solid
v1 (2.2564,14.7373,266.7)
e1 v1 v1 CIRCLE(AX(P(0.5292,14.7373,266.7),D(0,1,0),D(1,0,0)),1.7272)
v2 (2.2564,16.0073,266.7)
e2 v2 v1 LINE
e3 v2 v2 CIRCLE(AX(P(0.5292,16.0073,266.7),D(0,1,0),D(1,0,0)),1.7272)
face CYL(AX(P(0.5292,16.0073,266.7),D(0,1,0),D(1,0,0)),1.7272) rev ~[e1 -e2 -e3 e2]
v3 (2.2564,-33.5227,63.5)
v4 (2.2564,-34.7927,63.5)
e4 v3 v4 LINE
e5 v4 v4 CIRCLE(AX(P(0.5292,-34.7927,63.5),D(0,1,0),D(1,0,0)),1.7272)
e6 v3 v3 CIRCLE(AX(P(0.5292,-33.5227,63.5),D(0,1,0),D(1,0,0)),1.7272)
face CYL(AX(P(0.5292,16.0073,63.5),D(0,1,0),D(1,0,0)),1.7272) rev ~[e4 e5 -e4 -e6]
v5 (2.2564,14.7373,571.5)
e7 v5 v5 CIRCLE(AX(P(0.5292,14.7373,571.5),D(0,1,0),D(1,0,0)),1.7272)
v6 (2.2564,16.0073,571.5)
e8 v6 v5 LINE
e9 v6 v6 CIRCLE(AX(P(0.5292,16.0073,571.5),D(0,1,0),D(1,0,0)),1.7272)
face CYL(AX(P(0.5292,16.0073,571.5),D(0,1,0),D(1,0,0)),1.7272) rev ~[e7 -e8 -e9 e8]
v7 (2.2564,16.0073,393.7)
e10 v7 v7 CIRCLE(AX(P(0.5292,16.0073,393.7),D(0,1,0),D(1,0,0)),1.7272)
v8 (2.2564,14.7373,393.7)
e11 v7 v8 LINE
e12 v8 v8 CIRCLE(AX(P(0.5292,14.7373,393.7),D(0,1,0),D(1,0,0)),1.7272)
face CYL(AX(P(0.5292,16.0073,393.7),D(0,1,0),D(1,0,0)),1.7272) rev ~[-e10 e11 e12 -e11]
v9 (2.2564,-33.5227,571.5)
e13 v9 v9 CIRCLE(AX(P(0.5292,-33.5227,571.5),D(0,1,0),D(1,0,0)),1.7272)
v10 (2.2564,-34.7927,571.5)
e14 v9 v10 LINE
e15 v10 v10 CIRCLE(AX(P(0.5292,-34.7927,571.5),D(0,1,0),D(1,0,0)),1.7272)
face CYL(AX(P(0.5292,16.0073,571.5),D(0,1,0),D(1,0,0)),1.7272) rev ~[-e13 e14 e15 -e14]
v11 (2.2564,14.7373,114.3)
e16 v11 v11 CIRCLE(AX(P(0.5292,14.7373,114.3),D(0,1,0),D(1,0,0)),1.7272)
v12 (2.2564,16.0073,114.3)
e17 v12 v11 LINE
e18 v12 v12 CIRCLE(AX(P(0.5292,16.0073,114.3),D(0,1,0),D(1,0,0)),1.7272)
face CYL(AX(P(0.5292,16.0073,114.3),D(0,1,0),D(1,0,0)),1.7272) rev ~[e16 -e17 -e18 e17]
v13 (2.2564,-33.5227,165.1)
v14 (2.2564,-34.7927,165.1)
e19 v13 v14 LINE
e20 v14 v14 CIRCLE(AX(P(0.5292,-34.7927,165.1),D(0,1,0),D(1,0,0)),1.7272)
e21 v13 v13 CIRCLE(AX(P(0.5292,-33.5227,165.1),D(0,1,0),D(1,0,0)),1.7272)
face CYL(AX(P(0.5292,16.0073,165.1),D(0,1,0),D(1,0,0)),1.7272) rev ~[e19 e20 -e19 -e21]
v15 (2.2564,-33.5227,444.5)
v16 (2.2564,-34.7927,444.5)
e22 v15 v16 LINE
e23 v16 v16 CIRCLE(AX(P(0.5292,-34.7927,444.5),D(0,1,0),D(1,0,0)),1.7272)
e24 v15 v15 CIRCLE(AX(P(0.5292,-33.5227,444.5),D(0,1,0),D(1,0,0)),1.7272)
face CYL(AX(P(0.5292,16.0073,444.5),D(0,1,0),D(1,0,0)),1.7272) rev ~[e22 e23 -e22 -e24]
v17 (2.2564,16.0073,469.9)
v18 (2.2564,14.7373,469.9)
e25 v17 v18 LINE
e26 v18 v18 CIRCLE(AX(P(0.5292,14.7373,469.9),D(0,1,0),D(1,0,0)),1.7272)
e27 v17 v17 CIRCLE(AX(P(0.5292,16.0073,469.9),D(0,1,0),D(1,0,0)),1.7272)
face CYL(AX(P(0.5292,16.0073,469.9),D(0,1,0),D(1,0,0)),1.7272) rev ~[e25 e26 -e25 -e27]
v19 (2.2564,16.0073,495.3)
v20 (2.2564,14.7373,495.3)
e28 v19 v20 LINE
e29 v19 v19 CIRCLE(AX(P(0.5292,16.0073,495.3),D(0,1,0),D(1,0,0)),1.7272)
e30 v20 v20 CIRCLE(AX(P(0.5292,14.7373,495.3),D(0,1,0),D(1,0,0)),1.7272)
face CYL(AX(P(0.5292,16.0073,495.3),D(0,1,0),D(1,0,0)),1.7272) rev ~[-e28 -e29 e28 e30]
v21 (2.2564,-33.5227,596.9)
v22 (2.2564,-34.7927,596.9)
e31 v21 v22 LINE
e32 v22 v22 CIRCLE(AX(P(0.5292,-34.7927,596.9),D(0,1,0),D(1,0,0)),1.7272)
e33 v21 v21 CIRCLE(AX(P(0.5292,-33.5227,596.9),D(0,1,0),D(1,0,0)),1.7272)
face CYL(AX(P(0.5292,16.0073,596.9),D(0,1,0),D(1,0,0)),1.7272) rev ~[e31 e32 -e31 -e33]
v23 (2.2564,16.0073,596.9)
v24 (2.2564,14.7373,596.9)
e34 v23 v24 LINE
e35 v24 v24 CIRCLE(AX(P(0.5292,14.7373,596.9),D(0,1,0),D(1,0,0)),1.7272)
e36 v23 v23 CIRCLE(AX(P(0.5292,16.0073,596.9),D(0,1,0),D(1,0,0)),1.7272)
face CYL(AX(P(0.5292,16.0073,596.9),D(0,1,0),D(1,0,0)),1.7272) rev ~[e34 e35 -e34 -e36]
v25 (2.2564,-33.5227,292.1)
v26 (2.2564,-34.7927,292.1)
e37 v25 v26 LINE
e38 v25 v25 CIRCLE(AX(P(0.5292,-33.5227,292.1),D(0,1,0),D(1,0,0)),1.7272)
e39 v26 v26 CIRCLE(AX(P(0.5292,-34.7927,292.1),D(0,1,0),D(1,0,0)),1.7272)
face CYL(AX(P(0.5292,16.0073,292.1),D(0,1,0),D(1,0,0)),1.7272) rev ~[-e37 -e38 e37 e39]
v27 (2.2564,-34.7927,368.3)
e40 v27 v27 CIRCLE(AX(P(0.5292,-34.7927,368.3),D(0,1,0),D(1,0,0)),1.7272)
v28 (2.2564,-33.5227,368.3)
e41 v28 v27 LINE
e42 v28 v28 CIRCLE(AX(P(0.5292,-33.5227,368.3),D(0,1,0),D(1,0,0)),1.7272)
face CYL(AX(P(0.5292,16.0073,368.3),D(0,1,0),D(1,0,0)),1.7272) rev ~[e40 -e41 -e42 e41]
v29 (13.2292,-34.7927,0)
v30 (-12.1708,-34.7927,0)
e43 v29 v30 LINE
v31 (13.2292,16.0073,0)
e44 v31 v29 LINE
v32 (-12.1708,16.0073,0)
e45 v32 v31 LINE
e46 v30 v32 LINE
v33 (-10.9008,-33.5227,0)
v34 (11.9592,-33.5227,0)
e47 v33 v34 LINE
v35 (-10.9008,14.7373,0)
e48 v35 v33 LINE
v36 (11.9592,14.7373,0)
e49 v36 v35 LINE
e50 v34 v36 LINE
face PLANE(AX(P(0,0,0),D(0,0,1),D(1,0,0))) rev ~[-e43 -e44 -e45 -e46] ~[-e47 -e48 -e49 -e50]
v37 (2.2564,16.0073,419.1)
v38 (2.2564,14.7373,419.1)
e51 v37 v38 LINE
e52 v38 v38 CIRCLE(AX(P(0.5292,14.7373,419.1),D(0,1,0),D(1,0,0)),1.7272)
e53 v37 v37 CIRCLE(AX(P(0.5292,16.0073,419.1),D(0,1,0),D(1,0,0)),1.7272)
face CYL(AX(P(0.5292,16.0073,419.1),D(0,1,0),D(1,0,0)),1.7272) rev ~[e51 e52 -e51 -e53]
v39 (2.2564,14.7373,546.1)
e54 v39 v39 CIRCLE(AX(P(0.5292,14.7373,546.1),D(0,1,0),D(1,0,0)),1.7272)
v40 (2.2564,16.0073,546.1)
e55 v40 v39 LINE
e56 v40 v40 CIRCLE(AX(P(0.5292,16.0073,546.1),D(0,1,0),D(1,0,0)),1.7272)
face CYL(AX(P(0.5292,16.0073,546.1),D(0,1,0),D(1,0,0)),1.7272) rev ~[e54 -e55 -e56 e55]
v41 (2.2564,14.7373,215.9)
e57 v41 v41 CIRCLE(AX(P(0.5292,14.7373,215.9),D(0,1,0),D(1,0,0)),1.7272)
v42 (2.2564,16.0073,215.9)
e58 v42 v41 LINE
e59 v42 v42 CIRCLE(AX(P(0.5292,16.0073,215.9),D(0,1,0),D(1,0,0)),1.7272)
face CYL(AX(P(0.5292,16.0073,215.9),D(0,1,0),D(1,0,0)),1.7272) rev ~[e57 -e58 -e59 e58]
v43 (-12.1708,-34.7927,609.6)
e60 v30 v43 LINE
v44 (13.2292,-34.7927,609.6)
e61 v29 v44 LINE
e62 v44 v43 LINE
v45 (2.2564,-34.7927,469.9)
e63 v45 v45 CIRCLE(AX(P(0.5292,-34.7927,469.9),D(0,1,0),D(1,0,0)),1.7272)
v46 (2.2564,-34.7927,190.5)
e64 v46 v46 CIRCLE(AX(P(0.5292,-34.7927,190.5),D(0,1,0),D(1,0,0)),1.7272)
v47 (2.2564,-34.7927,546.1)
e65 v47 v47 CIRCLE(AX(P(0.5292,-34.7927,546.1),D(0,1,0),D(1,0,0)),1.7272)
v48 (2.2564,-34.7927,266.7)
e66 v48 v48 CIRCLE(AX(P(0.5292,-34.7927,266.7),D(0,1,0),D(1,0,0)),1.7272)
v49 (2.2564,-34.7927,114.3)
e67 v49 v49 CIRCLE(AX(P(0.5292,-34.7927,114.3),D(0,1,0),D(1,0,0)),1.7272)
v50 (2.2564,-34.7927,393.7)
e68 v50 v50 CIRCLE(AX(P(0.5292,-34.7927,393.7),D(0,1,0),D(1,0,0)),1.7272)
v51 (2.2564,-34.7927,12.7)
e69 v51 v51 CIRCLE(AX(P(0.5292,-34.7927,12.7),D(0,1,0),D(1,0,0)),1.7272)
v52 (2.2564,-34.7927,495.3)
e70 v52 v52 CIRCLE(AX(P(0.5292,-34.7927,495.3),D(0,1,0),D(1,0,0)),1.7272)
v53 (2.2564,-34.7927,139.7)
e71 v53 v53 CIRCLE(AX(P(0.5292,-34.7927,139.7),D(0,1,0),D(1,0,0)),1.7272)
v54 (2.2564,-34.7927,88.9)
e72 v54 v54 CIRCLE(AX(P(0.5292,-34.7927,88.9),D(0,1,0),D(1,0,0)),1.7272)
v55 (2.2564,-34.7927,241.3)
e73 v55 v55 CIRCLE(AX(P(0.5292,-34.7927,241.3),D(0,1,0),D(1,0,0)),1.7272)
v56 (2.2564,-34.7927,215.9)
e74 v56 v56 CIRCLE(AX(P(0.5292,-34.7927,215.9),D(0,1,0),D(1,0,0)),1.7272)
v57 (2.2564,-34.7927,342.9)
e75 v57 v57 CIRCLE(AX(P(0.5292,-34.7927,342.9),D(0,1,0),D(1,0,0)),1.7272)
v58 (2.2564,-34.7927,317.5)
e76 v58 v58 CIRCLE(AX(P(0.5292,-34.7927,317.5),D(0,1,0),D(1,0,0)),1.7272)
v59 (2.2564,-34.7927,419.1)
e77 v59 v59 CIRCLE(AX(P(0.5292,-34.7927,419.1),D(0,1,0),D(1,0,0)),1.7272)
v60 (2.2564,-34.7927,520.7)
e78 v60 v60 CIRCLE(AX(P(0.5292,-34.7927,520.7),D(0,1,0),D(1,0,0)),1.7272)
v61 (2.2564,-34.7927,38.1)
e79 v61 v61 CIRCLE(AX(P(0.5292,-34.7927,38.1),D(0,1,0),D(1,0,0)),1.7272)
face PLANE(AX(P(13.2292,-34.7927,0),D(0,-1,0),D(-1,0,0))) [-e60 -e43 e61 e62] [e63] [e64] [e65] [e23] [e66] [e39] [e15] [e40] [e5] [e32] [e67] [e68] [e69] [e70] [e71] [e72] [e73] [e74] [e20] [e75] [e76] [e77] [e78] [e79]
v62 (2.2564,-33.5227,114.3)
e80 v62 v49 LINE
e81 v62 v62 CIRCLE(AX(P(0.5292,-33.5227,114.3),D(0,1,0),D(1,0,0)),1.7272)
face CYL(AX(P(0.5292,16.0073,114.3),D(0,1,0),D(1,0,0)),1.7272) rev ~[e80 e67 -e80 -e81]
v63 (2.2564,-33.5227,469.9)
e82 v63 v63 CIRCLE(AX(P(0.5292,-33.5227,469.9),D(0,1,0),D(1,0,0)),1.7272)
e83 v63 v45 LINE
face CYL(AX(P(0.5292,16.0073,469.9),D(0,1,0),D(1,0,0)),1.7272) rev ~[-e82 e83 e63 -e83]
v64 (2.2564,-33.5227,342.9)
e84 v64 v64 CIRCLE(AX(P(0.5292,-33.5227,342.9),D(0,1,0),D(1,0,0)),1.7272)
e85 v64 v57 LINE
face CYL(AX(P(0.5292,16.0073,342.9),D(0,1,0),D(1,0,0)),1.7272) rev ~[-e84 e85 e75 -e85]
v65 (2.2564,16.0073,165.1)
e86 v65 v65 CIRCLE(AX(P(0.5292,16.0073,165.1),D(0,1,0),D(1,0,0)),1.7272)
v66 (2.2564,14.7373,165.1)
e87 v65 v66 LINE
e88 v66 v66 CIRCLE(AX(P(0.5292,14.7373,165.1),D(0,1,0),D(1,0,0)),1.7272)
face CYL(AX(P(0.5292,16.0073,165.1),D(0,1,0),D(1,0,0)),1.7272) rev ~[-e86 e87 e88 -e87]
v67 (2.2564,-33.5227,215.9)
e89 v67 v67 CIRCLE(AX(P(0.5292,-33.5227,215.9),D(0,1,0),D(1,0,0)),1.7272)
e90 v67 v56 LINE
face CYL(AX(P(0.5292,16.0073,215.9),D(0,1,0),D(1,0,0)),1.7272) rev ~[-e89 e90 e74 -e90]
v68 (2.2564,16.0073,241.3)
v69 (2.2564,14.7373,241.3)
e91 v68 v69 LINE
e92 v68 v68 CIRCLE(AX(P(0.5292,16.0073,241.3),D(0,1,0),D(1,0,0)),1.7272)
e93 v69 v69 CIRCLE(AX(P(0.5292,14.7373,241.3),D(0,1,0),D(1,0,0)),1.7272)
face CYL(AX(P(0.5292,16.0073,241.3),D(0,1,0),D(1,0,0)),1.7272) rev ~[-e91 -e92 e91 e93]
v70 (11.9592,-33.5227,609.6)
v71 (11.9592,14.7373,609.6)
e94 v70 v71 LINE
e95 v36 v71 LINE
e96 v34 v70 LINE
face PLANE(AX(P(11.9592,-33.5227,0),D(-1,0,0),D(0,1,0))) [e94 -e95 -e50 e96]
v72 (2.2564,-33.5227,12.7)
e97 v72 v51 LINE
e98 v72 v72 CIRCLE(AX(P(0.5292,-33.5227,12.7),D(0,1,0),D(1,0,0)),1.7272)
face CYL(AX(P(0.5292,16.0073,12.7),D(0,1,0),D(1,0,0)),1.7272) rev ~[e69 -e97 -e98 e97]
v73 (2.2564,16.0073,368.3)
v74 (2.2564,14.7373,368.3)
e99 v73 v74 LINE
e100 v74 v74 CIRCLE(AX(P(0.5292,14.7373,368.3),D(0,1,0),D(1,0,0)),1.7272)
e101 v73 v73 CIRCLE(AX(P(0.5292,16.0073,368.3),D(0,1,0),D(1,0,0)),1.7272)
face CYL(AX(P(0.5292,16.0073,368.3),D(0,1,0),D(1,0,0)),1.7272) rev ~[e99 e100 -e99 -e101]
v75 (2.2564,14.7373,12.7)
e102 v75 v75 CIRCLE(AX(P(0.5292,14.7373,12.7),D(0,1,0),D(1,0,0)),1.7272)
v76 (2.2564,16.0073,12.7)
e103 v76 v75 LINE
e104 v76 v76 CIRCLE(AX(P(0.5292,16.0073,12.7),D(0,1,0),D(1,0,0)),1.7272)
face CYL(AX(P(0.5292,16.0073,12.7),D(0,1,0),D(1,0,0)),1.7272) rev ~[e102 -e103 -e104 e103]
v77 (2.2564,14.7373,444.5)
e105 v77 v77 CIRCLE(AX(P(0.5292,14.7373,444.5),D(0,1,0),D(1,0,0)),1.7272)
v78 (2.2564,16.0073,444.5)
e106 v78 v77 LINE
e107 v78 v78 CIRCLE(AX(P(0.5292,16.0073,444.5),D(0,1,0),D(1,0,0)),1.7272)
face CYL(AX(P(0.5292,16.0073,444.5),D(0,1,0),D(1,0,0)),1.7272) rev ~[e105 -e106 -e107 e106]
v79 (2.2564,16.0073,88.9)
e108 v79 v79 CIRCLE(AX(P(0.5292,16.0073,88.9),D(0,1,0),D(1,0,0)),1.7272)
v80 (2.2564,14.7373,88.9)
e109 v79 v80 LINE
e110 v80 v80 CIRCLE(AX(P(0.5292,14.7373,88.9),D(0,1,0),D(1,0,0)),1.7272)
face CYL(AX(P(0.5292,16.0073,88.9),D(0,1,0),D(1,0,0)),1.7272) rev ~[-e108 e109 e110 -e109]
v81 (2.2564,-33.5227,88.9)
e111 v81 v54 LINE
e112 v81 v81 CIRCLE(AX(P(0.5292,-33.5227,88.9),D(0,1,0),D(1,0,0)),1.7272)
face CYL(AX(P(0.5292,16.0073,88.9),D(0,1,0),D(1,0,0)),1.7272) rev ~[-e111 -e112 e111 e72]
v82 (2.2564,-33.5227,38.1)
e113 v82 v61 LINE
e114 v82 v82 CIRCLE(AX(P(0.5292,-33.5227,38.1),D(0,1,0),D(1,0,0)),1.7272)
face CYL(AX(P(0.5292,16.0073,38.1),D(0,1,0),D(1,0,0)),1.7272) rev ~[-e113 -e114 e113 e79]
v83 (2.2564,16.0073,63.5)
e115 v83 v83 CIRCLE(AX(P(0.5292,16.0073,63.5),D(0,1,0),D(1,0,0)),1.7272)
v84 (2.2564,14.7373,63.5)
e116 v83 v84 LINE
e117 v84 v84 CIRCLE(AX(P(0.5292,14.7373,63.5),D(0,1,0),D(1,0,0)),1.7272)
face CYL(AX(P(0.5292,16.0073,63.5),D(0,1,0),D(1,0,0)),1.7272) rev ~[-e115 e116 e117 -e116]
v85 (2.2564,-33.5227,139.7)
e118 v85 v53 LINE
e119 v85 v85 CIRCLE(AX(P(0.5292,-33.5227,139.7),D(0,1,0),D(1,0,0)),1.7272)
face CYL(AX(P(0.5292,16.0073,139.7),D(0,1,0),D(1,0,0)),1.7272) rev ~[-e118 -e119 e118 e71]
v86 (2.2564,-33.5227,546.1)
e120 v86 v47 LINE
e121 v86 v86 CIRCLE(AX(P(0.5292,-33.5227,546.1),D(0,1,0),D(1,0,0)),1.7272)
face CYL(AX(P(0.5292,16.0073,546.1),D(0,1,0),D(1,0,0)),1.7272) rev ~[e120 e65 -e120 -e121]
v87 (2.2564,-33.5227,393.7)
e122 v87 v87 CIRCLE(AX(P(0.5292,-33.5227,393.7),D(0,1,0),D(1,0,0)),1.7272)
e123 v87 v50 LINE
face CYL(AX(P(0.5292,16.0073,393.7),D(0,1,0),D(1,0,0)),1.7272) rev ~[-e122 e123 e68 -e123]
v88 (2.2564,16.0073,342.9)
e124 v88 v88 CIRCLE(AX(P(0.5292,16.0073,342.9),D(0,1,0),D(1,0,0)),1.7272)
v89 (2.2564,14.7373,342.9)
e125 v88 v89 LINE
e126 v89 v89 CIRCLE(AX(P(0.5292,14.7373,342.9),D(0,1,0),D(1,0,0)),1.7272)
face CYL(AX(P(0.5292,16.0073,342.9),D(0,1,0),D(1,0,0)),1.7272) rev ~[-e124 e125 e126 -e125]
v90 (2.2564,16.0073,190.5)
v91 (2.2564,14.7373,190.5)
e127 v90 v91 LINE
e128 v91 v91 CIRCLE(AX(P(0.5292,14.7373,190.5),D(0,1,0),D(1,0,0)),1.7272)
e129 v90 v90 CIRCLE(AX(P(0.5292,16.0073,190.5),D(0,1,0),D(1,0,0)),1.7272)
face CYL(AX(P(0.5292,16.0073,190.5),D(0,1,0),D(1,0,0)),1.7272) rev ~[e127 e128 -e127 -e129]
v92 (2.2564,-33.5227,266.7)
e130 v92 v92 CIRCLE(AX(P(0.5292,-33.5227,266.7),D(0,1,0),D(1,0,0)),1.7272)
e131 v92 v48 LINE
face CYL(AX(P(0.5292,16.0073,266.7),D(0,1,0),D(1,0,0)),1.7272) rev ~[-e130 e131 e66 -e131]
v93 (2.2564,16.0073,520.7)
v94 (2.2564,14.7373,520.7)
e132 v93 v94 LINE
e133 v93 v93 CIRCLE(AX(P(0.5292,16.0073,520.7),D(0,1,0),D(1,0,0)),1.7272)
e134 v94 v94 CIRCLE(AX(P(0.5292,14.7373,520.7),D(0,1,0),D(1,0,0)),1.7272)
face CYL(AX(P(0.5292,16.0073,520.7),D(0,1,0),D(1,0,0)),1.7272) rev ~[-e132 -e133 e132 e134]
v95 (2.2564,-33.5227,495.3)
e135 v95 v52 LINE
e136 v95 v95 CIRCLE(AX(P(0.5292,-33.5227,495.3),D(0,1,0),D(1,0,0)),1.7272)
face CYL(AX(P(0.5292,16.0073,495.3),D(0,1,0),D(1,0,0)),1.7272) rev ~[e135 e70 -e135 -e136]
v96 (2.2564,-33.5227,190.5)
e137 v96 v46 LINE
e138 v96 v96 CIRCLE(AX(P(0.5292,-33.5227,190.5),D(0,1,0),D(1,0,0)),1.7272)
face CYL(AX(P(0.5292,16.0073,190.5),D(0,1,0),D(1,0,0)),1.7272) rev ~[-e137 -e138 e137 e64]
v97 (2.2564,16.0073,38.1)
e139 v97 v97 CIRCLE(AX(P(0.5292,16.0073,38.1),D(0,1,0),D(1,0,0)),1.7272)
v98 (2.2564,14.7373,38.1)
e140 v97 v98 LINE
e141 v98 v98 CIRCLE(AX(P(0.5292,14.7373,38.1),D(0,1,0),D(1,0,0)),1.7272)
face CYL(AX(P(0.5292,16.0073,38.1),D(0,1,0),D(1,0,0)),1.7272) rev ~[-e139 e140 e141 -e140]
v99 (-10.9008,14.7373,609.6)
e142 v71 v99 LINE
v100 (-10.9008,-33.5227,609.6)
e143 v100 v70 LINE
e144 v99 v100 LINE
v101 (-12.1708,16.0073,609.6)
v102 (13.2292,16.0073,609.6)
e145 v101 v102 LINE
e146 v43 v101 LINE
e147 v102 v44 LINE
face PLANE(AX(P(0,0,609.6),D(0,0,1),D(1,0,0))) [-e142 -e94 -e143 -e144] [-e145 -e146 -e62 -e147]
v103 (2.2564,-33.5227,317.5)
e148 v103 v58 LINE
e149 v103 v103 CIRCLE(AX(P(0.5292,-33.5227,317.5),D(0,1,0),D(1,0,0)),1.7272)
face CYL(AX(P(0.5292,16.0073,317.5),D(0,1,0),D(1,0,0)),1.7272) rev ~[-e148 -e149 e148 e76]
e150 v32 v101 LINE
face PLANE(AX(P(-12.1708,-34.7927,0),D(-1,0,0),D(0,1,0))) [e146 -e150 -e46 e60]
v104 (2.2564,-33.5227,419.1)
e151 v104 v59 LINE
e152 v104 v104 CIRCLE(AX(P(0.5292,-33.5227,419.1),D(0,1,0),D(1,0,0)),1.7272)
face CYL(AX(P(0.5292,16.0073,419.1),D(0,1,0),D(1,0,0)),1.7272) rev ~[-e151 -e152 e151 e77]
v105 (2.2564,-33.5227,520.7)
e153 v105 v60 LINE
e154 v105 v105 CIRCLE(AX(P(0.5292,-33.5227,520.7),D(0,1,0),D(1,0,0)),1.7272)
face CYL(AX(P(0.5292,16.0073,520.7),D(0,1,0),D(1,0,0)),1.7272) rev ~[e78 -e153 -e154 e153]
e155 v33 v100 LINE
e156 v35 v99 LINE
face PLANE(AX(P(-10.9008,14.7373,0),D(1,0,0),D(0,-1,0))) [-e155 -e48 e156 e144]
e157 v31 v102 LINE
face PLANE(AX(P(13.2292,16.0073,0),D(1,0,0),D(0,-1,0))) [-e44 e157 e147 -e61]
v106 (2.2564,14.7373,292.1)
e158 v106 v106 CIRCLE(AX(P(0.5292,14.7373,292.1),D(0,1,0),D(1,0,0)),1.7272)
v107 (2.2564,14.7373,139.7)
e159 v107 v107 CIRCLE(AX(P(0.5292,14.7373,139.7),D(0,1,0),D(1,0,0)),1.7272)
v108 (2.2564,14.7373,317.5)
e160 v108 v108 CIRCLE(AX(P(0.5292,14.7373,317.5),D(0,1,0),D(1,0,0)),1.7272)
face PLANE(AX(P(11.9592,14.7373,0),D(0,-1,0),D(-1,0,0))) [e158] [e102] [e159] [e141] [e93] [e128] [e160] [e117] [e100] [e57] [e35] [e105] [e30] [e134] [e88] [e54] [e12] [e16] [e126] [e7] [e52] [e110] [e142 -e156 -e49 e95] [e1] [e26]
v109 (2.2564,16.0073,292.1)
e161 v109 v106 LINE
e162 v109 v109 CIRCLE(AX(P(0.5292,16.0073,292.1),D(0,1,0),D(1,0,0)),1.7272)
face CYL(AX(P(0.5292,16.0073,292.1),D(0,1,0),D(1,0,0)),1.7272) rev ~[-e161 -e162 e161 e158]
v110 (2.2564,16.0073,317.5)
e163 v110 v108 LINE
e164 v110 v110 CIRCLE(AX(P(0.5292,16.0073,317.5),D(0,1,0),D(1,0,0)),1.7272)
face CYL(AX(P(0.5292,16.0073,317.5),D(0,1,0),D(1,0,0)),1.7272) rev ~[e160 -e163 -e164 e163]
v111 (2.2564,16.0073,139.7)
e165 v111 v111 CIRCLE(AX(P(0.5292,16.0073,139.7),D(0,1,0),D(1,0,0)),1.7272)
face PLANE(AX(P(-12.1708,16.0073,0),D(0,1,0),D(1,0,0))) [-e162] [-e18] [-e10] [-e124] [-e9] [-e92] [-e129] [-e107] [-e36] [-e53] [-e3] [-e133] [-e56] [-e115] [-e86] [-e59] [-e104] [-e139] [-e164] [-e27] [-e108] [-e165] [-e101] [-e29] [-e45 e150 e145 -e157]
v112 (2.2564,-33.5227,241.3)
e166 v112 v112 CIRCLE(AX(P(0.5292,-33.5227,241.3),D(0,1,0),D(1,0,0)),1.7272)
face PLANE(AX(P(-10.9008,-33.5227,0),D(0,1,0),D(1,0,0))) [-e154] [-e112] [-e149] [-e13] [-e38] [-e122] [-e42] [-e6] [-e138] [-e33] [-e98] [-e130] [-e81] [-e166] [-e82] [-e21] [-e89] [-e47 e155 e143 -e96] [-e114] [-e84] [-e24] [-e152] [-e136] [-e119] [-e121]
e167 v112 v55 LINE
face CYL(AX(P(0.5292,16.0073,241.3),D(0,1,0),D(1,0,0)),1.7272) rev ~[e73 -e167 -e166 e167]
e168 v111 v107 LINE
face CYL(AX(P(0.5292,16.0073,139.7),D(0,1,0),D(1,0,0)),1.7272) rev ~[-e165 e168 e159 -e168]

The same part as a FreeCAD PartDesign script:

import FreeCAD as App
import Part
import Sketcher
from FreeCAD import Vector
Q = App.Units.Quantity


def add_polygon(sketch, points):
    """Adds a closed chain of lines whose ends are joined by coincident constraints."""
    first, n = sketch.GeometryCount, len(points)
    for a, b in zip(points, points[1:] + points[:1]):
        sketch.addGeometry(Part.LineSegment(App.Vector(*a, 0), App.Vector(*b, 0)), False)
    for i in range(n):
        sketch.addConstraint(Sketcher.Constraint("Coincident", first + i, 2, first + (i + 1) % n, 1))

doc = App.newDocument("Part")
body = doc.addObject("PartDesign::Body", "Body")

sketch1 = body.newObject("Sketcher::SketchObject", "Sketch")
sketch1.AttachmentSupport = (doc.getObject("XY_Plane"), [""])
sketch1.MapMode = "FlatFace"
add_polygon(sketch1, [(13, 16), (-12, 16), (-12, -35), (13, -35)])
add_polygon(sketch1, [(-11, 15), (12, 15), (12, -34), (-11, -34)])
sketch1.addConstraint(Sketcher.Constraint("Horizontal", 0))
sketch1.addConstraint(Sketcher.Constraint("Vertical", 1))
sketch1.addConstraint(Sketcher.Constraint("Horizontal", 2))
sketch1.addConstraint(Sketcher.Constraint("Vertical", 3))
sketch1.addConstraint(Sketcher.Constraint("Horizontal", 4))
sketch1.addConstraint(Sketcher.Constraint("Vertical", 5))
sketch1.addConstraint(Sketcher.Constraint("Horizontal", 6))
sketch1.addConstraint(Sketcher.Constraint("Vertical", 7))
sketch1.addConstraint(Sketcher.Constraint("DistanceX", 0, 2, 0, 1, Q("1 in")))
sketch1.addConstraint(Sketcher.Constraint("DistanceY", 1, 2, 1, 1, Q("2 in")))
sketch1.addConstraint(Sketcher.Constraint("DistanceX", 4, 2, 3, 2, Q("0.05 in")))
sketch1.addConstraint(Sketcher.Constraint("DistanceY", 4, 2, 3, 2, Q("0.05 in")))
sketch1.addConstraint(Sketcher.Constraint("DistanceY", 2, 2, 5, 2, Q("0.05 in")))
sketch1.addConstraint(Sketcher.Constraint("DistanceX", 1, 2, 6, 2, Q("0.05 in")))
sketch1.addConstraint(Sketcher.Constraint("DistanceY", -1, 1, 0, 2, Q("0.6302 in")))
sketch1.addConstraint(Sketcher.Constraint("DistanceX", 0, 2, -1, 1, 12.1708))
pad1 = body.newObject("PartDesign::Pad", "Pad")
pad1.Profile = sketch1
pad1.Length = Q("24 in")

sketch2 = body.newObject("Sketcher::SketchObject", "Sketch001")
sketch2.AttachmentSupport = (doc.getObject("XZ_Plane"), [""])
sketch2.MapMode = "FlatFace"
sketch2.AttachmentOffset = App.Placement(Vector(0, 0, -0.6302087 * 25.4), App.Rotation())
sketch2.addGeometry(Part.Circle(Vector(0.5, 12.7, 0), Vector(0, 0, 1), 1.7), False)
sketch2.addConstraint(Sketcher.Constraint("Diameter", 0, Q("0.136 in")))
sketch2.addConstraint(Sketcher.Constraint("DistanceY", -1, 1, 0, 3, Q("0.5 in")))
sketch2.addConstraint(Sketcher.Constraint("DistanceX", -1, 1, 0, 3, 0.5292))
pocket1 = body.newObject("PartDesign::Pocket", "Pocket")
pocket1.Profile = sketch2
pocket1.Type = "ThroughAll"
pocket1.Reversed = True
doc.recompute()

linearpattern = body.newObject("PartDesign::LinearPattern", "LinearPattern")
linearpattern.Originals = [pocket1]
linearpattern.Direction = (doc.getObject("Z_Axis"), [""])
linearpattern.Mode = "offset"
linearpattern.Offset = Q("1 in")
linearpattern.Occurrences = 24
body.Tip = linearpattern

doc.recompute()
